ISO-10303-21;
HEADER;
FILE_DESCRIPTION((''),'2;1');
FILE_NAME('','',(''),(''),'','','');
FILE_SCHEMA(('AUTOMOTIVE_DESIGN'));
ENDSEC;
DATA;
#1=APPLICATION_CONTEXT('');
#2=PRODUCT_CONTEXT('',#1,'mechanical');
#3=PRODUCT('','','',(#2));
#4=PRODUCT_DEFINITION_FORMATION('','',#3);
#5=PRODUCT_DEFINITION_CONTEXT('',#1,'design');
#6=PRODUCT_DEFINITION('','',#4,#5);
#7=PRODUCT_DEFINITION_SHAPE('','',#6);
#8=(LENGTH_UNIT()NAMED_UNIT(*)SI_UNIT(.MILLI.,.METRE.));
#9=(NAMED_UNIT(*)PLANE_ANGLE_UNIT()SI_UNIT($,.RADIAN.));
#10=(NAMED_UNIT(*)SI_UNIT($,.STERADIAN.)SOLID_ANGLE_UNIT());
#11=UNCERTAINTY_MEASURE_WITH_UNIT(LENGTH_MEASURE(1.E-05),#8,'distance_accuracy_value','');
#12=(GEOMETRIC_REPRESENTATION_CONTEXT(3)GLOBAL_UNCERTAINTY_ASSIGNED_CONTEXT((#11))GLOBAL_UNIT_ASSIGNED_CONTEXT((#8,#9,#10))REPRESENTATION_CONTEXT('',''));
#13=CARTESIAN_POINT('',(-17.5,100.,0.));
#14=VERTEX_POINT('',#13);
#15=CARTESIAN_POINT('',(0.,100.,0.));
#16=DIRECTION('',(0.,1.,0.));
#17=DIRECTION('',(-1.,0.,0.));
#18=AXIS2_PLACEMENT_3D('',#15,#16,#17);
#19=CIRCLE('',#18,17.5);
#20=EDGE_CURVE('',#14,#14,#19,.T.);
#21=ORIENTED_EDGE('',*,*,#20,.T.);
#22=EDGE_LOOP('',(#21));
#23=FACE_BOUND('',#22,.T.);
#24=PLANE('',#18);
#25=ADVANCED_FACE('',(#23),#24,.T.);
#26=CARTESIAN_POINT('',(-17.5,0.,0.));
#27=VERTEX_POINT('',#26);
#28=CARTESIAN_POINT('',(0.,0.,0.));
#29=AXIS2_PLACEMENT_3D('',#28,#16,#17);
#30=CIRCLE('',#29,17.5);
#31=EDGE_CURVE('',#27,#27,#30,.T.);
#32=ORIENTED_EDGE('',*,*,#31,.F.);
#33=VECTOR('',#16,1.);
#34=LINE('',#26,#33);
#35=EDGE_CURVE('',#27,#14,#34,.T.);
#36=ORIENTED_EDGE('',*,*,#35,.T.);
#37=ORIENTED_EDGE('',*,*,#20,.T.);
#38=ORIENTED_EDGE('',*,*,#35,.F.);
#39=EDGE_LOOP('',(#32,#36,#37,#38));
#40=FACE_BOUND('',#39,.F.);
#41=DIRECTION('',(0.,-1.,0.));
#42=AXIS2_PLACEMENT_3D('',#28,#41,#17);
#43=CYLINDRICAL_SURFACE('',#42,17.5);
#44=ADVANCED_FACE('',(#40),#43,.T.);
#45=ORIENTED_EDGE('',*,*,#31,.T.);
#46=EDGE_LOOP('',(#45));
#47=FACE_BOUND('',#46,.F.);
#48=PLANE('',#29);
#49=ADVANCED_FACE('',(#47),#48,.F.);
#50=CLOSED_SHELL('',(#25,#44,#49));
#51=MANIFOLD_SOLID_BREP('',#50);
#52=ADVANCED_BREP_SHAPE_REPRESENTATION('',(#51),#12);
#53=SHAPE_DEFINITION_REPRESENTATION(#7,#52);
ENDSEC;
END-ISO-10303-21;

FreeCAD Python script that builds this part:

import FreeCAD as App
import Part
import Sketcher
from FreeCAD import Vector

doc = App.newDocument("Part")
body = doc.addObject("PartDesign::Body", "Body")

# Sketch on XZ plane
sketch1 = body.newObject("Sketcher::SketchObject", "Sketch")
sketch1.AttachmentSupport = (doc.getObject("XZ_Plane"), [""])
sketch1.MapMode = "FlatFace"
sketch1.addGeometry(Part.Circle(Vector(0, 0, 0), Vector(0, 0, 1), 18), False)
sketch1.addConstraint([
    Sketcher.Constraint("Coincident", 0, 3, -1, 1),
    Sketcher.Constraint("Diameter", 0, 35.0),
])
pad1 = body.newObject("PartDesign::Pad", "Pad")
pad1.Profile = sketch1
pad1.Length = 100
pad1.Reversed = True

doc.recompute()
